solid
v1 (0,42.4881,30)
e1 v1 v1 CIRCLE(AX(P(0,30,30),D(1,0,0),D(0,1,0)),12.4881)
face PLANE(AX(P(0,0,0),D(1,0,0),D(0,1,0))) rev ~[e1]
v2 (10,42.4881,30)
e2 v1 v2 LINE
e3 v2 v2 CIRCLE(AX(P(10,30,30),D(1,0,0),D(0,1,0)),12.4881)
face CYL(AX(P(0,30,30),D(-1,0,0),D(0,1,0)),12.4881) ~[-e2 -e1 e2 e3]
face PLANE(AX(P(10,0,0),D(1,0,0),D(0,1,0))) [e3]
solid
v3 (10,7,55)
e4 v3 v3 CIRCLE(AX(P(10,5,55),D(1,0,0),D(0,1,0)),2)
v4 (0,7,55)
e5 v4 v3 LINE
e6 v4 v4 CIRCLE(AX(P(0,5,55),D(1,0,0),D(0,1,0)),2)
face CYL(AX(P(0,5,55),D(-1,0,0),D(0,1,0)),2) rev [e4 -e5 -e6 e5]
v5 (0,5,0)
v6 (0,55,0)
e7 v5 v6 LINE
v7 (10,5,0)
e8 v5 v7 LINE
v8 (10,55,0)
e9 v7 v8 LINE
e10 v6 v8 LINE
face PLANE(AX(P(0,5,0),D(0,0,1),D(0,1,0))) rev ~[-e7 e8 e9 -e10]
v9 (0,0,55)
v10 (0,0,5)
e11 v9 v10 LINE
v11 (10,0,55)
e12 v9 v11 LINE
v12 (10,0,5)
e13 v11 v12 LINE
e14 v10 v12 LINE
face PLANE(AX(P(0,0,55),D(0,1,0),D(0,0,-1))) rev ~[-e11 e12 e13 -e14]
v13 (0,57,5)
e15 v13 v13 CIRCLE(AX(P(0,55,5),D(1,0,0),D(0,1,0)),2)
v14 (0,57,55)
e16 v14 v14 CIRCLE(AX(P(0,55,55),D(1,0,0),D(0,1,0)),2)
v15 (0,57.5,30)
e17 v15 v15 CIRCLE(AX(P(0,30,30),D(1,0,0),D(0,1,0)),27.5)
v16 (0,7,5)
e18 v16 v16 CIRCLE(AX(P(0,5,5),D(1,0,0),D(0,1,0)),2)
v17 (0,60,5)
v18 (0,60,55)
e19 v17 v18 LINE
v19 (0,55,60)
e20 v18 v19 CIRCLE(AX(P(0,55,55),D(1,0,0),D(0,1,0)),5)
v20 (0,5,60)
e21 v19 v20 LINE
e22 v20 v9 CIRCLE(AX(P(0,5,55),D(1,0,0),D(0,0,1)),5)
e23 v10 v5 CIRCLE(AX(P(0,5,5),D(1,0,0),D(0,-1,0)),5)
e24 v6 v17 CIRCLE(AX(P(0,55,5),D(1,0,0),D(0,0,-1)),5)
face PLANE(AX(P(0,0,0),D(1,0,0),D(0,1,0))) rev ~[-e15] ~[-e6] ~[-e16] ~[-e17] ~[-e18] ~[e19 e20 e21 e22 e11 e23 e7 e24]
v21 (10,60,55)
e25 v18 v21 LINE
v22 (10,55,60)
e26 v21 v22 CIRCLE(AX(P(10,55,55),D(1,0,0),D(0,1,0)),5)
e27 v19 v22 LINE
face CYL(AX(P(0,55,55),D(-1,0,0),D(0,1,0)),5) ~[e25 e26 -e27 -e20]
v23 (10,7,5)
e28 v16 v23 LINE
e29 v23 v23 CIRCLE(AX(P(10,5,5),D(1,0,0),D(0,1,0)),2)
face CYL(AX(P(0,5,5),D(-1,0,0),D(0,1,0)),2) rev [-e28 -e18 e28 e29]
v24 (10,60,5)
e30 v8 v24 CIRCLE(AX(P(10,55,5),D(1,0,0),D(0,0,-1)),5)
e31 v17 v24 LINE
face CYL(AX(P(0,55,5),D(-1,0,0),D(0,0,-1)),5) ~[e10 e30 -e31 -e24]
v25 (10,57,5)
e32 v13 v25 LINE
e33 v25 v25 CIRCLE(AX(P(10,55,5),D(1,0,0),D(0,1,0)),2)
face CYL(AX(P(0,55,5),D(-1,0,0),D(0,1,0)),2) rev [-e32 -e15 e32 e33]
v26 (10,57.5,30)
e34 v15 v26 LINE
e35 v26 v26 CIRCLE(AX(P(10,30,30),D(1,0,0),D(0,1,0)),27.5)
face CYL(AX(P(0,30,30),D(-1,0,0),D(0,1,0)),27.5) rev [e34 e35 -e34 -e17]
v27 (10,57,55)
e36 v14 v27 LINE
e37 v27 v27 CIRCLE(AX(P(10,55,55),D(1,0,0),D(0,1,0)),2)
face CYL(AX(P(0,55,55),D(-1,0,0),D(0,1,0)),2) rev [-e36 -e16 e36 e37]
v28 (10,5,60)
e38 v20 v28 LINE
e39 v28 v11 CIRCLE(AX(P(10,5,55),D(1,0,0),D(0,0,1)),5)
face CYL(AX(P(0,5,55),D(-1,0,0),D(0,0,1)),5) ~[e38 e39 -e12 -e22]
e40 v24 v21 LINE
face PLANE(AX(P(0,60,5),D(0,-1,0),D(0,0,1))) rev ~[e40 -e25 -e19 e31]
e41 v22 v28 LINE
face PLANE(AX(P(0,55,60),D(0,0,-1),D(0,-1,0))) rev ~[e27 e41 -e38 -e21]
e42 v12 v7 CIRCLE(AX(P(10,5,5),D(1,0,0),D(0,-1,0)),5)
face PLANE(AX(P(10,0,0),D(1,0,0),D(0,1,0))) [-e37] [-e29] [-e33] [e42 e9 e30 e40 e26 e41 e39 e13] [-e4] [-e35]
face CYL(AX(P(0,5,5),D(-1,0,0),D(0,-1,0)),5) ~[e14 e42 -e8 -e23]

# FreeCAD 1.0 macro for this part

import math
import FreeCAD as App
import Part
import Sketcher

V = App.Vector

doc = App.newDocument("Part")
body = doc.addObject("PartDesign::Body", "Body")
body.AllowCompound = True

# Sketch on YZ plane
sketch1 = body.newObject("Sketcher::SketchObject", "Sketch")
sketch1.AttachmentSupport = (doc.getObject("YZ_Plane"), [""])
sketch1.MapMode = "FlatFace"
sketch1.addGeometry(Part.ArcOfCircle(Part.Circle(V(5, 5, 0), V(0, 0, 1), 5), math.radians(180), math.radians(270)), False)
sketch1.addGeometry(Part.LineSegment(V(5, 0, 0), V(55, 0, 0)), False)
sketch1.addGeometry(Part.ArcOfCircle(Part.Circle(V(55, 5, 0), V(0, 0, 1), 5), math.radians(-90), math.radians(0)), False)
sketch1.addGeometry(Part.LineSegment(V(60, 5, 0), V(60, 55, 0)), False)
sketch1.addGeometry(Part.ArcOfCircle(Part.Circle(V(55, 55, 0), V(0, 0, 1), 5), math.radians(0), math.radians(90)), False)
sketch1.addGeometry(Part.LineSegment(V(55, 60, 0), V(5, 60, 0)), False)
sketch1.addGeometry(Part.ArcOfCircle(Part.Circle(V(5, 55, 0), V(0, 0, 1), 5), math.radians(90), math.radians(180)), False)
sketch1.addGeometry(Part.LineSegment(V(0, 55, 0), V(0, 5, 0)), False)
sketch1.addGeometry(Part.Circle(V(5, 5, 0), V(0, 0, 1), 2), False)
sketch1.addGeometry(Part.Circle(V(55, 5, 0), V(0, 0, 1), 2), False)
sketch1.addGeometry(Part.Circle(V(5, 55, 0), V(0, 0, 1), 2), False)
sketch1.addGeometry(Part.Circle(V(30, 30, 0), V(0, 0, 1), 27.5), False)
sketch1.addGeometry(Part.Circle(V(55, 55, 0), V(0, 0, 1), 2), False)
sketch1.addGeometry(Part.Circle(V(30, 30, 0), V(0, 0, 1), 12.5), False)
sketch1.addConstraint(Sketcher.Constraint("Tangent", 0, 2, 1, 1))
sketch1.addConstraint(Sketcher.Constraint("Tangent", 1, 2, 2, 1))
sketch1.addConstraint(Sketcher.Constraint("Tangent", 2, 2, 3, 1))
sketch1.addConstraint(Sketcher.Constraint("Tangent", 3, 2, 4, 1))
sketch1.addConstraint(Sketcher.Constraint("Tangent", 4, 2, 5, 1))
sketch1.addConstraint(Sketcher.Constraint("Tangent", 5, 2, 6, 1))
sketch1.addConstraint(Sketcher.Constraint("Tangent", 6, 2, 7, 1))
sketch1.addConstraint(Sketcher.Constraint("Tangent", 7, 2, 0, 1))
sketch1.addConstraint(Sketcher.Constraint("Horizontal", 1))
sketch1.addConstraint(Sketcher.Constraint("Vertical", 3))
sketch1.addConstraint(Sketcher.Constraint("Horizontal", 5))
sketch1.addConstraint(Sketcher.Constraint("Vertical", 7))
sketch1.addConstraint(Sketcher.Constraint("Coincident", 8, 3, 0, 3))
sketch1.addConstraint(Sketcher.Constraint("Coincident", 9, 3, 2, 3))
sketch1.addConstraint(Sketcher.Constraint("Coincident", 10, 3, 6, 3))
sketch1.addConstraint(Sketcher.Constraint("Coincident", 12, 3, 4, 3))
sketch1.addConstraint(Sketcher.Constraint("Coincident", 13, 3, 11, 3))
sketch1.addConstraint(Sketcher.Constraint("Equal", 0, 2))
sketch1.addConstraint(Sketcher.Constraint("Equal", 2, 4))
sketch1.addConstraint(Sketcher.Constraint("Equal", 4, 6))
sketch1.addConstraint(Sketcher.Constraint("Equal", 8, 9))
sketch1.addConstraint(Sketcher.Constraint("Equal", 9, 10))
sketch1.addConstraint(Sketcher.Constraint("Equal", 10, 12))
sketch1.addConstraint(Sketcher.Constraint("PointOnObject", 0, 2, -1))
sketch1.addConstraint(Sketcher.Constraint("PointOnObject", 6, 2, -2))
sketch1.addConstraint(Sketcher.Constraint("Equal", 5, 3))
sketch1.addConstraint(Sketcher.Constraint("Diameter", 8, 4.0))
sketch1.addConstraint(Sketcher.Constraint("Diameter", 11, 55.0))
sketch1.addConstraint(Sketcher.Constraint("Radius", 0, 5.0))
sketch1.addConstraint(Sketcher.Constraint("DistanceX", -1, 1, 2, 3, 55.0))
sketch1.addConstraint(Sketcher.Constraint("DistanceX", -1, 1, 11, 3, 30.0))
sketch1.addConstraint(Sketcher.Constraint("DistanceY", -1, 1, 11, 3, 30.0))
sketch1.addConstraint(Sketcher.Constraint("Diameter", 13, 24.9762))
pad1 = body.newObject("PartDesign::Pad", "Pad")
pad1.Profile = sketch1
pad1.Length = 10

doc.recompute()
